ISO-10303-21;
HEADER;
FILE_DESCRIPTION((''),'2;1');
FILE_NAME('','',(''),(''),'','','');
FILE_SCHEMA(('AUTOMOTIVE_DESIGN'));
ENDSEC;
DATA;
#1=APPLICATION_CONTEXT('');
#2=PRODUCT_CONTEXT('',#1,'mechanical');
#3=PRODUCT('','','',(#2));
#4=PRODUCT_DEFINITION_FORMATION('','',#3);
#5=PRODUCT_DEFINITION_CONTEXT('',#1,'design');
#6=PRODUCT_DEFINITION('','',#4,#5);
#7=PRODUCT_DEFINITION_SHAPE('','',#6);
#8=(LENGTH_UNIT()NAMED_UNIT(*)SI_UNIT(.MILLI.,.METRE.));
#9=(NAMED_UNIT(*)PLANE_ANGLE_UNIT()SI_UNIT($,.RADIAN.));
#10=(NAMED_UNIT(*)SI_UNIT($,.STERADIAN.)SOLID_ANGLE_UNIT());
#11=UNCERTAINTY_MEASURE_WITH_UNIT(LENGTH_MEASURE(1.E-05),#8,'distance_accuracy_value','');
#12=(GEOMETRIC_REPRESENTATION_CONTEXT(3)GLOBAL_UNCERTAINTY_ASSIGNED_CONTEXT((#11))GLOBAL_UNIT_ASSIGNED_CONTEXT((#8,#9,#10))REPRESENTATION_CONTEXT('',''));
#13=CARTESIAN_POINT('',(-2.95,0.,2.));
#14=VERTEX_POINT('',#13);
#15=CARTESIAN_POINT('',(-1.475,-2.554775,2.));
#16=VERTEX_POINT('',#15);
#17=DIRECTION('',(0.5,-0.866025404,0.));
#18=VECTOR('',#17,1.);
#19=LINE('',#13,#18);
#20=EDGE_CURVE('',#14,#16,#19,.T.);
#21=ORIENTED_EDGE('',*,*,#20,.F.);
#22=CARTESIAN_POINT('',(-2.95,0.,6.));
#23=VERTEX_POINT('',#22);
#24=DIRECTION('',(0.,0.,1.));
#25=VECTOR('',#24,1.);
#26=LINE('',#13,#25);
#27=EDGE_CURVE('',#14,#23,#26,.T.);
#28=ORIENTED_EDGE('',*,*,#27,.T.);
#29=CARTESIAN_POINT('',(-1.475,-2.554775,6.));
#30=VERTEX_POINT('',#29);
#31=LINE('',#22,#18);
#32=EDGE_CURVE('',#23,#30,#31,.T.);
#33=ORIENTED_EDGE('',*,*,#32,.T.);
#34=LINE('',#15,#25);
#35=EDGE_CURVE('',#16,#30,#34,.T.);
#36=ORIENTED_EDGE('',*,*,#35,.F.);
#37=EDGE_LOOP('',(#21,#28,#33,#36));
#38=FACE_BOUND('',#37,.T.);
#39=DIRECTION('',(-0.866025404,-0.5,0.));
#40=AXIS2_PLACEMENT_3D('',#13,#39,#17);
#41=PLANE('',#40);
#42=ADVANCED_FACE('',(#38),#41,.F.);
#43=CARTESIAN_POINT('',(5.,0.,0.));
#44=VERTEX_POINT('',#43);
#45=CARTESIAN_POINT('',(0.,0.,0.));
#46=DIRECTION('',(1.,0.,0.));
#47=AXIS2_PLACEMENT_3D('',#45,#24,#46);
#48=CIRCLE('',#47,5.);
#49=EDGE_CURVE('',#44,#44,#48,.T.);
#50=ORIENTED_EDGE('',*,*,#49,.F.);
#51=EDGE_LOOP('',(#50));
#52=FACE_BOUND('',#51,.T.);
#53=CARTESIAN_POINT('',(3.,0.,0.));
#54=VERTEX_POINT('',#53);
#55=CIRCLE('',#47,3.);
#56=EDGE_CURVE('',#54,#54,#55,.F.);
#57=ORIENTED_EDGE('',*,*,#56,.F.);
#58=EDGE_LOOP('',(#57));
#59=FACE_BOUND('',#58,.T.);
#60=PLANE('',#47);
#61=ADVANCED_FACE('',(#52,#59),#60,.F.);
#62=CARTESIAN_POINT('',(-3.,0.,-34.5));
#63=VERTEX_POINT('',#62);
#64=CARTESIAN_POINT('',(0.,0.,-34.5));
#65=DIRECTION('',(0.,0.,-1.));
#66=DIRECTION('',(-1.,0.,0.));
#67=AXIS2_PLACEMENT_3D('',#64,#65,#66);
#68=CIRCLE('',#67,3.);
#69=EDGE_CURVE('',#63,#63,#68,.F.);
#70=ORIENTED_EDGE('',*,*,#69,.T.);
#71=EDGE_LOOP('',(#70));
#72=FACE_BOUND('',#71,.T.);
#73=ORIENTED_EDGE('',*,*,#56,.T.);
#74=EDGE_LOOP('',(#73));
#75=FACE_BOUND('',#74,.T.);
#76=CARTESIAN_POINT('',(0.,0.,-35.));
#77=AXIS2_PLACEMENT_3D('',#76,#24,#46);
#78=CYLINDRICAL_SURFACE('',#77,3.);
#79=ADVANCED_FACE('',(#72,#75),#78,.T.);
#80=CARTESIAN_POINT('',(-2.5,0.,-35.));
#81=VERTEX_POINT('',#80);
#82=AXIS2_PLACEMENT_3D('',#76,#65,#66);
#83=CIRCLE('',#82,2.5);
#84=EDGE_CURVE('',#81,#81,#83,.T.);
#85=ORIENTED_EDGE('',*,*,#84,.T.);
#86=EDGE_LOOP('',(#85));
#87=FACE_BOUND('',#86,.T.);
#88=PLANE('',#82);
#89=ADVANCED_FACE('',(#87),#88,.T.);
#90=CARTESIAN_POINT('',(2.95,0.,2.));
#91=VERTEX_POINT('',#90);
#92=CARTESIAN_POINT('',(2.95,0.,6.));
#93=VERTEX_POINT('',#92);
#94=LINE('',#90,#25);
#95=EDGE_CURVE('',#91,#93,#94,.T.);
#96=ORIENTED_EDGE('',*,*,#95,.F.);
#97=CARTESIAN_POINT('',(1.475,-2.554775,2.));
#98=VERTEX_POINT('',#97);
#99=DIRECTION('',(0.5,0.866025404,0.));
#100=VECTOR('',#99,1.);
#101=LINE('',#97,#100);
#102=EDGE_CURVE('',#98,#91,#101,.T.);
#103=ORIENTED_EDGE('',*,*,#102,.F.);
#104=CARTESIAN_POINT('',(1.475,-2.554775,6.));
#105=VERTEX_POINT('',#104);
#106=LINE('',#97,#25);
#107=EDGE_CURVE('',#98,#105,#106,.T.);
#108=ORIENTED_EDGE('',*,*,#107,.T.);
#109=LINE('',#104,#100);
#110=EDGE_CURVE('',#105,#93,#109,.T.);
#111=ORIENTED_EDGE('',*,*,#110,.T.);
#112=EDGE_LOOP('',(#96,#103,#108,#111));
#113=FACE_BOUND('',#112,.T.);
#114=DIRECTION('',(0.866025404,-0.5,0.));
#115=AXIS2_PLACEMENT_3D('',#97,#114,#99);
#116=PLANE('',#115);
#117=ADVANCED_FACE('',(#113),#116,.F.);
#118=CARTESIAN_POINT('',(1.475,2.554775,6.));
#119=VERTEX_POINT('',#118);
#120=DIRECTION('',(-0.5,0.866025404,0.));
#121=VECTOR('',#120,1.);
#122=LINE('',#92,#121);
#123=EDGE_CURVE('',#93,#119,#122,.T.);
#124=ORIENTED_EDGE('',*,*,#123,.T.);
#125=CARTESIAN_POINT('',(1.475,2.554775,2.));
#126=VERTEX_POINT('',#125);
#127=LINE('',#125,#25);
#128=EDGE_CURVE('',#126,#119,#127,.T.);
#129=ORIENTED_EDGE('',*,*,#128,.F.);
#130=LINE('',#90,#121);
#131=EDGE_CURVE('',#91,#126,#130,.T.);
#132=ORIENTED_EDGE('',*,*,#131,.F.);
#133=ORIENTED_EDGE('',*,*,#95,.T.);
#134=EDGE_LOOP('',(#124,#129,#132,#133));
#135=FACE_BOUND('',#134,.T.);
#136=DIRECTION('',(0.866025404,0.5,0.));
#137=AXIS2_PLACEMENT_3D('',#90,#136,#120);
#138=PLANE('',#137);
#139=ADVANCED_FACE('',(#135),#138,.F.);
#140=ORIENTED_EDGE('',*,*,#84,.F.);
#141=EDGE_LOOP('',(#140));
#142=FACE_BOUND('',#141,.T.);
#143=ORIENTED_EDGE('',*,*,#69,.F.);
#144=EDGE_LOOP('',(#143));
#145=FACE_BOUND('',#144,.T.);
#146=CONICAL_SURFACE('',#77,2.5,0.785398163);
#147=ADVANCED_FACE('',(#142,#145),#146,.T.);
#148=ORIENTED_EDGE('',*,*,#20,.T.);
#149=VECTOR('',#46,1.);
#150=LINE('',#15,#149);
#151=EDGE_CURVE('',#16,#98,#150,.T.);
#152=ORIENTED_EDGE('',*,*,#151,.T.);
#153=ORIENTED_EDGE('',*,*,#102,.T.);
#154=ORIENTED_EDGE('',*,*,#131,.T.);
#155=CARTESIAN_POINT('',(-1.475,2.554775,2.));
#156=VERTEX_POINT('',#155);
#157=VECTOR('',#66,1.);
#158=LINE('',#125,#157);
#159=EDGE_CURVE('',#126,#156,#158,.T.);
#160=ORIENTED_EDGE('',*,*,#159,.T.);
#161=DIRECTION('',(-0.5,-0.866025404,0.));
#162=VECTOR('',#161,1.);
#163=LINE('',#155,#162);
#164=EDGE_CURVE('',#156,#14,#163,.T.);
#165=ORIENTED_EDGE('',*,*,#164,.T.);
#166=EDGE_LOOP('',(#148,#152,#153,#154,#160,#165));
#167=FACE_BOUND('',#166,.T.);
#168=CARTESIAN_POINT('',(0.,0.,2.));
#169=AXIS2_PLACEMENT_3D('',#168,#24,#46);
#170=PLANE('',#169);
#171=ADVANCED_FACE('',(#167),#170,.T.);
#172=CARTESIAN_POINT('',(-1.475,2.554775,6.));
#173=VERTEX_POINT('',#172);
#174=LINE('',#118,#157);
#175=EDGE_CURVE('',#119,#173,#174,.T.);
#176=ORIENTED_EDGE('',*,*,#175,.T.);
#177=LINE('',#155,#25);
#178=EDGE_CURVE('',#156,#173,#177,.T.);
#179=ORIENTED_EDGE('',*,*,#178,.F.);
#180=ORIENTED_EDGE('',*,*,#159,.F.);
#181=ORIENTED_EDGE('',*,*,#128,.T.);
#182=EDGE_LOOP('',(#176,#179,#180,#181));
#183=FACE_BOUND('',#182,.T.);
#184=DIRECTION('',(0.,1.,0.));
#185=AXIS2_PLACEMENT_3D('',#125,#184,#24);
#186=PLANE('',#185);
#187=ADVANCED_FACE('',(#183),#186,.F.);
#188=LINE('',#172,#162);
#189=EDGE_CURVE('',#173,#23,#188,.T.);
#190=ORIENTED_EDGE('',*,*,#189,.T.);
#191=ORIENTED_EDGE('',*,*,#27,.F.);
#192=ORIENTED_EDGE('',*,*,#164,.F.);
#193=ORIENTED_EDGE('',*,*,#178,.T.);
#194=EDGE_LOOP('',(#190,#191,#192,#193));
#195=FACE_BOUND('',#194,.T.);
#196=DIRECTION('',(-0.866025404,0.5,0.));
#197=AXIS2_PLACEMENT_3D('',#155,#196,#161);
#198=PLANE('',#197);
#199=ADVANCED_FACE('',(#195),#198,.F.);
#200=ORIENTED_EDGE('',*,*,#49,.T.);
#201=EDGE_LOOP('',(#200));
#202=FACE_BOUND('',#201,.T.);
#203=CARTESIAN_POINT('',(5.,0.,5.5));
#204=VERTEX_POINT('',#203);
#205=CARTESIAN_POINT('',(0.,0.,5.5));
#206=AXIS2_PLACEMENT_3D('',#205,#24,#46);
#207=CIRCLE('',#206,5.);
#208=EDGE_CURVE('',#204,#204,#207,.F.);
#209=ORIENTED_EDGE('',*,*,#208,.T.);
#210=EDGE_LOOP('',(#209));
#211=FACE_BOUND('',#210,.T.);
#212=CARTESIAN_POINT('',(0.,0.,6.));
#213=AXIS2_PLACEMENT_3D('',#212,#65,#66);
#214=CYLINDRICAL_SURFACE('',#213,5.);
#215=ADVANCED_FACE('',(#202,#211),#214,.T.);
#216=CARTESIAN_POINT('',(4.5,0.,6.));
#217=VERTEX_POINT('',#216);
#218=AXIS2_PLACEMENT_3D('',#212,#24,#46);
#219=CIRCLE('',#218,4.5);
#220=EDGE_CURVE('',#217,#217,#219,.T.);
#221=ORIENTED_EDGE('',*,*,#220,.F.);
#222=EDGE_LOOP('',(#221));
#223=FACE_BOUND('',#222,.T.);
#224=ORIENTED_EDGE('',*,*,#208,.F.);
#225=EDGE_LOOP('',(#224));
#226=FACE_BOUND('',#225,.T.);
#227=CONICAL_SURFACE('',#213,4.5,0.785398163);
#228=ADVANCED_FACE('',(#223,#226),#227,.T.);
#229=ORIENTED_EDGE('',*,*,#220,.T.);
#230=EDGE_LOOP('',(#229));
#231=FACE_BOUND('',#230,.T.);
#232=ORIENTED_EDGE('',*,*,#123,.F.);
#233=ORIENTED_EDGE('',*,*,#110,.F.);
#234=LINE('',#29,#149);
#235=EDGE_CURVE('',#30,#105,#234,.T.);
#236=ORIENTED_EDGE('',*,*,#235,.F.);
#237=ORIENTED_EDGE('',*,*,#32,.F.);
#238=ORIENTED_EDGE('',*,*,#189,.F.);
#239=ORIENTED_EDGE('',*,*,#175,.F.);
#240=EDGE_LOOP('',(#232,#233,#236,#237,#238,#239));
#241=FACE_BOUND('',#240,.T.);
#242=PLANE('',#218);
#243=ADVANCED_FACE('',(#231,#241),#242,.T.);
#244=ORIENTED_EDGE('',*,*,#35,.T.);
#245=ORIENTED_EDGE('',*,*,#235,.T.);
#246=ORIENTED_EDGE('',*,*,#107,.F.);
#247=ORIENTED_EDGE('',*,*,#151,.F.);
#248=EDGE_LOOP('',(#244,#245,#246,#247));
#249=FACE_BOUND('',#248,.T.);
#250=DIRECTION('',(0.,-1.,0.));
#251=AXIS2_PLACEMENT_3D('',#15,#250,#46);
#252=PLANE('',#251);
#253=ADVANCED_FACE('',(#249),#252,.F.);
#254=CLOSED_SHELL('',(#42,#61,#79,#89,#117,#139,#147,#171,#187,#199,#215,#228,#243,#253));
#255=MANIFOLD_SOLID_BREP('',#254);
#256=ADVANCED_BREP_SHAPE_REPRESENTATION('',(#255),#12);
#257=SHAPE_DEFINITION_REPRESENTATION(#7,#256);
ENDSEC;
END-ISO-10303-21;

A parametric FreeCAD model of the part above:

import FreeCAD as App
import Part
import Sketcher
from FreeCAD import Vector
Q = App.Units.Quantity


def edges_at(feature, points):
    """Names of the edges that pass closest to the given points."""
    edges = feature.Shape.Edges
    near = lambda p: min(range(len(edges)), key=lambda i: edges[i].distToShape(Part.Vertex(*p))[0])
    return sorted({f"Edge{near(p) + 1}" for p in points})


def add_polygon(sketch, points):
    """Adds a closed chain of lines whose ends are joined by coincident constraints."""
    first, n = sketch.GeometryCount, len(points)
    for a, b in zip(points, points[1:] + points[:1]):
        sketch.addGeometry(Part.LineSegment(App.Vector(*a, 0), App.Vector(*b, 0)), False)
    for i in range(n):
        sketch.addConstraint(Sketcher.Constraint("Coincident", first + i, 2, first + (i + 1) % n, 1))

doc = App.newDocument("Part")
body = doc.addObject("PartDesign::Body", "Body")

# Sketch on XY plane
sketch1 = body.newObject("Sketcher::SketchObject", "Sketch")
sketch1.AttachmentSupport = (doc.getObject("XY_Plane"), [""])
sketch1.MapMode = "FlatFace"
sketch1.addGeometry(Part.Circle(Vector(0, 0, 0), Vector(0, 0, 1), 5), False)
sketch1.addConstraint([
    Sketcher.Constraint("Coincident", 0, 3, -1, 1),
    Sketcher.Constraint("Diameter", 0, 10.0),
])
pad1 = body.newObject("PartDesign::Pad", "Pad")
pad1.Profile = sketch1
pad1.Length = 6

# Sketch on XY plane
sketch2 = body.newObject("Sketcher::SketchObject", "Sketch001")
sketch2.AttachmentSupport = (doc.getObject("XY_Plane"), [""])
sketch2.MapMode = "FlatFace"
sketch2.addGeometry(Part.Circle(Vector(0, 0, 0), Vector(0, 0, 1), 3), False)
sketch2.addConstraint([
    Sketcher.Constraint("Coincident", 0, 3, -1, 1),
    Sketcher.Constraint("Diameter", 0, 6.0),
])
pad2 = body.newObject("PartDesign::Pad", "Pad001")
pad2.Profile = sketch2
pad2.Length = 35
pad2.Reversed = True
doc.recompute()

chamfer = body.newObject("PartDesign::Chamfer", "Chamfer")
chamfer.Base = (pad2, edges_at(pad2, [(-5, 0, 6), (-3, 0, -35)]))
chamfer.Size = 0.5

# Sketch on XY plane
sketch3 = body.newObject("Sketcher::SketchObject", "Sketch002")
sketch3.AttachmentSupport = (doc.getObject("XY_Plane"), [""])
sketch3.MapMode = "FlatFace"
sketch3.AttachmentOffset = App.Placement(Vector(0, 0, 6), App.Rotation())
add_polygon(sketch3, [(3, 0), (1.5, 2.6), (-1.5, 2.6), (-3, 0), (-1.5, -2.6), (1.5, -2.6)])  # lines 0-5
sketch3.addConstraint([
    Sketcher.Constraint("Horizontal", 1),
    Sketcher.Constraint("Horizontal", 4),
    Sketcher.Constraint("Symmetric", 0, 2, 3, 2, -1, 1),
    Sketcher.Constraint("Symmetric", 2, 2, 5, 2, -1, 1),
    Sketcher.Constraint("PointOnObject", 2, 2, -1),
    Sketcher.Constraint("Parallel", 2, 5),
    Sketcher.Constraint("Vertical", 1, 2, 3, 2),
    Sketcher.Constraint("Angle", 0, Q("120 deg")),
    Sketcher.Constraint("DistanceX", 1, 2, 1, 1, 2.95),
    Sketcher.Constraint("DistanceX", 2, 2, 5, 2, 5.9),
])
pocket1 = body.newObject("PartDesign::Pocket", "Pocket")
pocket1.Profile = sketch3
pocket1.Length = 4

doc.recompute()
